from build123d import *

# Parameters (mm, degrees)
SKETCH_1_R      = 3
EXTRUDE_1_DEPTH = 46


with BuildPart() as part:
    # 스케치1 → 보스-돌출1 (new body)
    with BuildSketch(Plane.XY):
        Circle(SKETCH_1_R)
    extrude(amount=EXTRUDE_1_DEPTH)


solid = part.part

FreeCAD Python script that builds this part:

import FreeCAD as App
import Part
import Sketcher
Q = App.Units.Quantity

doc = App.newDocument("Part")
body = doc.addObject("PartDesign::Body", "Body")

sketch1 = body.newObject("Sketcher::SketchObject", "Sketch")
sketch1.AttachmentSupport = (doc.getObject("XY_Plane"), [""])
sketch1.MapMode = "FlatFace"
sketch1.addGeometry(Part.Circle(App.Vector(0, 0, 0), App.Vector(0, 0, 1), 3), False)
sketch1.addConstraint([
    Sketcher.Constraint("Coincident", 0, 3, -1, 1),
    Sketcher.Constraint("Diameter", 0, Q("6 mm")),
])
pad1 = body.newObject("PartDesign::Pad", "Pad")
pad1.Profile = sketch1
pad1.Length = 46

doc.recompute()
